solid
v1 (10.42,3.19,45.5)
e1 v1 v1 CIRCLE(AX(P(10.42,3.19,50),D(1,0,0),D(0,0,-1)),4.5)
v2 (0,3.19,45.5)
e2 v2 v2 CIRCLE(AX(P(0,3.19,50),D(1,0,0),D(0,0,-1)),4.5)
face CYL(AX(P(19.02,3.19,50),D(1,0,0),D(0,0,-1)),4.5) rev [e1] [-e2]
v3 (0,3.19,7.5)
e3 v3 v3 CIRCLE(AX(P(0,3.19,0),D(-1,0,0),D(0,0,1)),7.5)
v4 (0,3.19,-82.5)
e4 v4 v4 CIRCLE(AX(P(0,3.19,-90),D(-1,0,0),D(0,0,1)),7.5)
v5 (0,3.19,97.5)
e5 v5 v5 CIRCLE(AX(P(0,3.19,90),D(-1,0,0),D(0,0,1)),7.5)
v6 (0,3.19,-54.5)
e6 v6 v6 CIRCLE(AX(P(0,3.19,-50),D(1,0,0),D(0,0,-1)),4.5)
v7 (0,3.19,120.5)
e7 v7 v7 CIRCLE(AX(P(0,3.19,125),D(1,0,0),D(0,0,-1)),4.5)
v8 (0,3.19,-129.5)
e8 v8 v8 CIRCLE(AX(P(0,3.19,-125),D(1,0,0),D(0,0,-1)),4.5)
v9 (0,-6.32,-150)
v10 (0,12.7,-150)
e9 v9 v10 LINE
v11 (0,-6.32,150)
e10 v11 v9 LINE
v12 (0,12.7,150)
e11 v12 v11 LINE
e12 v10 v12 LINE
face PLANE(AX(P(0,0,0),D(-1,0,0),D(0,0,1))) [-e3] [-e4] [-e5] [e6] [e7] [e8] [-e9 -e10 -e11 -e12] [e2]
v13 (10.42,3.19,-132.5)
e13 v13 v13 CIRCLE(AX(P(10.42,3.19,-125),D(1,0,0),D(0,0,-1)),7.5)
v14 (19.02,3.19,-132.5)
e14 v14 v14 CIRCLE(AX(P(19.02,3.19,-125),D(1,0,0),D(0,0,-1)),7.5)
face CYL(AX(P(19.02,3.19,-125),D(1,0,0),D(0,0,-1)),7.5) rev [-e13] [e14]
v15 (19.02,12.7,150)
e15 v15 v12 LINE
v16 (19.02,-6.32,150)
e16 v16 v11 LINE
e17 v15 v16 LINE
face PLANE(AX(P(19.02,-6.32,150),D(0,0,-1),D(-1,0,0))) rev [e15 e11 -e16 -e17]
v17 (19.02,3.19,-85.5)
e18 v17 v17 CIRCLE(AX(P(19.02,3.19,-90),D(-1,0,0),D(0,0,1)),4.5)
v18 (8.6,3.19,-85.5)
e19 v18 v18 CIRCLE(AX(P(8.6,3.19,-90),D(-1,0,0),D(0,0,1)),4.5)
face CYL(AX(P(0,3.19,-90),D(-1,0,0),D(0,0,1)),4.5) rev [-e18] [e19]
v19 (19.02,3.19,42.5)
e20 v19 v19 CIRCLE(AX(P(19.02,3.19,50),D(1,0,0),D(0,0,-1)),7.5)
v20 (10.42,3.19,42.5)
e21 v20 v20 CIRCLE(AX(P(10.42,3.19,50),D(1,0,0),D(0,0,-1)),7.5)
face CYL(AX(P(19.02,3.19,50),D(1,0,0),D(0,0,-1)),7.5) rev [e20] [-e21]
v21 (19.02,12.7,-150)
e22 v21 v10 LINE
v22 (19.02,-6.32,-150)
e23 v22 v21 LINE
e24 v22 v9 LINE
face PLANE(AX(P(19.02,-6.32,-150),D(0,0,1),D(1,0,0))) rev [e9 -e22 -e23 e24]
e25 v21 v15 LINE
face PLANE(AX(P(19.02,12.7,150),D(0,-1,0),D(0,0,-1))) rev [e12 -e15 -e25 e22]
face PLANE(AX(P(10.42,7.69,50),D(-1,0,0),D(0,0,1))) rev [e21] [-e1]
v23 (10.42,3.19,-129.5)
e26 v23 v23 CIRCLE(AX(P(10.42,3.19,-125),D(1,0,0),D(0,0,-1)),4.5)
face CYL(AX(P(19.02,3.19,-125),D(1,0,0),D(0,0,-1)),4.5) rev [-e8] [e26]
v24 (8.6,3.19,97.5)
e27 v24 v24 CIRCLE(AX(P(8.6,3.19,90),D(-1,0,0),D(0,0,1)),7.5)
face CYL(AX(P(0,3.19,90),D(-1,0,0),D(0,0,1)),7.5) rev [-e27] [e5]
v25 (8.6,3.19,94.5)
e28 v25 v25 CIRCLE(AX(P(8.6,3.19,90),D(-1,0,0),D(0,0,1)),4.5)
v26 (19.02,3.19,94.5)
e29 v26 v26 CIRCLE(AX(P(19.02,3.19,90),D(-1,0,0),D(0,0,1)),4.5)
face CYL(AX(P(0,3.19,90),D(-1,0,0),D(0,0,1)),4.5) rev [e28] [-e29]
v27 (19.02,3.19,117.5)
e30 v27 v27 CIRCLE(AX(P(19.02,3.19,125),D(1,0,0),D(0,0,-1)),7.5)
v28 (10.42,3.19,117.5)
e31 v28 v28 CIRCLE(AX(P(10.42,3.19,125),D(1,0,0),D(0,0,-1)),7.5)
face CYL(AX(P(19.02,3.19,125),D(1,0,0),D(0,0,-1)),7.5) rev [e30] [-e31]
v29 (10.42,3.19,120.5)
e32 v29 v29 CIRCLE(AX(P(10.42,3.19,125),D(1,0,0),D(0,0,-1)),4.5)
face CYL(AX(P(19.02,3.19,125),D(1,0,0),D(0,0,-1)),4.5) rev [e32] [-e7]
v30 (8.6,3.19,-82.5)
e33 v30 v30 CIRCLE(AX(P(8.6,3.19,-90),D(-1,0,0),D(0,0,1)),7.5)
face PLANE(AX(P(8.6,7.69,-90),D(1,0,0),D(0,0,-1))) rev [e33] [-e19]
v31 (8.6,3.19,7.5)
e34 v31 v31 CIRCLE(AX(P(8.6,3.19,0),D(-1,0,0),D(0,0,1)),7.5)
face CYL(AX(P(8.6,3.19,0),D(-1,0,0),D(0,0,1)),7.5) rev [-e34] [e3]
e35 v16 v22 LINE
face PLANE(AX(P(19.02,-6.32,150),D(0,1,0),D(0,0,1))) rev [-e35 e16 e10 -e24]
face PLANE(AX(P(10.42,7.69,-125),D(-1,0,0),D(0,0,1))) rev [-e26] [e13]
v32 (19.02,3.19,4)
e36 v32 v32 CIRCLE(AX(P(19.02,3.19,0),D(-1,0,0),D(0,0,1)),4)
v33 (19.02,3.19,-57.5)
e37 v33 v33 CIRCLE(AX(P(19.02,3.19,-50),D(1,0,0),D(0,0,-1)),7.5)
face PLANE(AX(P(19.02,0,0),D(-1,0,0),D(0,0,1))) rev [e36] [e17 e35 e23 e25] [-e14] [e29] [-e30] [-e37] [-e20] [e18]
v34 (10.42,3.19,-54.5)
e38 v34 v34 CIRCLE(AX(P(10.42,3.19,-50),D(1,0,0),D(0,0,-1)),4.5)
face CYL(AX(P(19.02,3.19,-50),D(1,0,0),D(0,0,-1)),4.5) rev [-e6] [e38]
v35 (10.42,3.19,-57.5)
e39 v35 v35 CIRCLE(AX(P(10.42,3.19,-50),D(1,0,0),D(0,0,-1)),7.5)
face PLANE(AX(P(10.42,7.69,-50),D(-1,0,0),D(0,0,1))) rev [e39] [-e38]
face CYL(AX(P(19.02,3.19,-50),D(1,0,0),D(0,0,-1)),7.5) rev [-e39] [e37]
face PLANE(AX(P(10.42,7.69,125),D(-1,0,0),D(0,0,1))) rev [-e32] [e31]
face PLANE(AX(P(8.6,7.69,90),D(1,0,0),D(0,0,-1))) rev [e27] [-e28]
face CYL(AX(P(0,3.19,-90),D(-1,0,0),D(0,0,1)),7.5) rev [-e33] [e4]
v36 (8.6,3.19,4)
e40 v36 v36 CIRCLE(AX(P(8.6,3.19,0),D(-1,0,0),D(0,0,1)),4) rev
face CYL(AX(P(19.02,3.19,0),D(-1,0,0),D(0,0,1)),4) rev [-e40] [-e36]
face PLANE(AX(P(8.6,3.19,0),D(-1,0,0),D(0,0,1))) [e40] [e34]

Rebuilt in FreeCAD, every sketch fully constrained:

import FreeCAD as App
import Part
import Sketcher

V = App.Vector
Q = App.Units.Quantity


def add_polygon(sketch, points):
    """Adds a closed chain of lines whose ends are joined by coincident constraints."""
    first, n = sketch.GeometryCount, len(points)
    for a, b in zip(points, points[1:] + points[:1]):
        sketch.addGeometry(Part.LineSegment(App.Vector(*a, 0), App.Vector(*b, 0)), False)
    for i in range(n):
        sketch.addConstraint(Sketcher.Constraint("Coincident", first + i, 2, first + (i + 1) % n, 1))

doc = App.newDocument("Part")
body = doc.addObject("PartDesign::Body", "Body")

sketch1 = body.newObject("Sketcher::SketchObject", "Sketch")
sketch1.AttachmentSupport = (doc.getObject("YZ_Plane"), [""])
sketch1.MapMode = "FlatFace"
add_polygon(sketch1, [(12.7, 150), (-6.3, 150), (-6.3, -150), (12.7, -150)])
sketch1.addGeometry(Part.Circle(V(3.2, 125, 0), V(0, 0, 1), 4), False)
sketch1.addGeometry(Part.Circle(V(3.2, 50, 0), V(0, 0, 1), 4), False)
sketch1.addGeometry(Part.Circle(V(3.2, -50, 0), V(0, 0, 1), 4), False)
sketch1.addGeometry(Part.Circle(V(3.2, -125, 0), V(0, 0, 1), 4), False)
sketch1.addConstraint(Sketcher.Constraint("Horizontal", 0))
sketch1.addConstraint(Sketcher.Constraint("Vertical", 1))
sketch1.addConstraint(Sketcher.Constraint("Horizontal", 2))
sketch1.addConstraint(Sketcher.Constraint("Vertical", 3))
sketch1.addConstraint(Sketcher.Constraint("Equal", 4, 5))
sketch1.addConstraint(Sketcher.Constraint("Equal", 5, 6))
sketch1.addConstraint(Sketcher.Constraint("Equal", 6, 7))
sketch1.addConstraint(Sketcher.Constraint("Symmetric", 5, 3, 6, 3, -1))
sketch1.addConstraint(Sketcher.Constraint("Symmetric", 4, 3, 7, 3, -1))
sketch1.addConstraint(Sketcher.Constraint("Vertical", 4, 3, 5, 3))
sketch1.addConstraint(Sketcher.Constraint("Diameter", 4, Q("8 mm")))
sketch1.addConstraint(Sketcher.Constraint("DistanceY", 1, 2, 1, 1, Q("300 mm")))
sketch1.addConstraint(Sketcher.Constraint("DistanceY", -1, 1, 4, 3, Q("125 mm")))
sketch1.addConstraint(Sketcher.Constraint("DistanceY", -1, 1, 5, 3, Q("50 mm")))
sketch1.addConstraint(Sketcher.Constraint("DistanceY", -1, 1, 0, 2, Q("150 mm")))
sketch1.addConstraint(Sketcher.Constraint("DistanceX", 0, 2, 0, 1, Q("19.02 mm")))
sketch1.addConstraint(Sketcher.Constraint("DistanceX", -1, 1, 2, 2, Q("12.7 mm")))
sketch1.addConstraint(Sketcher.Constraint("DistanceX", -1, 1, 4, 3, Q("3.19 mm")))
pad1 = body.newObject("PartDesign::Pad", "Pad")
pad1.Profile = sketch1
pad1.Length = 19.02

sketch2 = body.newObject("Sketcher::SketchObject", "Sketch001")
sketch2.AttachmentSupport = (doc.getObject("YZ_Plane"), [""])
sketch2.MapMode = "FlatFace"
sketch2.AttachmentOffset = App.Placement(V(0, 0, 19.02), App.Rotation())
sketch2.addGeometry(Part.Circle(V(3.2, 125, 0), V(0, 0, 1), 4.5), False)
sketch2.addGeometry(Part.Circle(V(3.2, 50, 0), V(0, 0, 1), 4.5), False)
sketch2.addGeometry(Part.Circle(V(3.2, -50, 0), V(0, 0, 1), 4.5), False)
sketch2.addGeometry(Part.Circle(V(3.2, -125, 0), V(0, 0, 1), 4.5), False)
sketch2.addConstraint(Sketcher.Constraint("Equal", 0, 1))
sketch2.addConstraint(Sketcher.Constraint("Equal", 1, 2))
sketch2.addConstraint(Sketcher.Constraint("Equal", 2, 3))
sketch2.addConstraint(Sketcher.Constraint("Symmetric", 1, 3, 2, 3, -1))
sketch2.addConstraint(Sketcher.Constraint("Symmetric", 0, 3, 3, 3, -1))
sketch2.addConstraint(Sketcher.Constraint("Vertical", 0, 3, 1, 3))
sketch2.addConstraint(Sketcher.Constraint("Diameter", 0, Q("9 mm")))
sketch2.addConstraint(Sketcher.Constraint("DistanceY", -1, 1, 0, 3, Q("125 mm")))
sketch2.addConstraint(Sketcher.Constraint("DistanceY", -1, 1, 1, 3, Q("50 mm")))
sketch2.addConstraint(Sketcher.Constraint("DistanceX", -1, 1, 0, 3, Q("3.19 mm")))
doc.recompute()
hole = body.newObject("PartDesign::Hole", "Hole")
hole.Profile = sketch2
hole.ThreadType = "None"
hole.Diameter = 9
hole.DepthType = "ThroughAll"
hole.HoleCutType = "Counterbore"
hole.HoleCutDiameter = 15
hole.HoleCutDepth = 8.6

sketch3 = body.newObject("Sketcher::SketchObject", "Sketch002")
sketch3.AttachmentSupport = (doc.getObject("YZ_Plane"), [""])
sketch3.MapMode = "FlatFace"
sketch3.addGeometry(Part.Circle(V(3.2, 0, 0), V(0, 0, 1), 4), False)
sketch3.addGeometry(Part.Circle(V(3.2, 90, 0), V(0, 0, 1), 4), False)
sketch3.addGeometry(Part.Circle(V(3.2, -90, 0), V(0, 0, 1), 4), False)
sketch3.addConstraint(Sketcher.Constraint("Equal", 0, 1))
sketch3.addConstraint(Sketcher.Constraint("Equal", 1, 2))
sketch3.addConstraint(Sketcher.Constraint("Symmetric", 1, 3, 2, 3, -1))
sketch3.addConstraint(Sketcher.Constraint("PointOnObject", 0, 3, -1))
sketch3.addConstraint(Sketcher.Constraint("Vertical", 0, 3, 1, 3))
sketch3.addConstraint(Sketcher.Constraint("Diameter", 0, Q("8 mm")))
sketch3.addConstraint(Sketcher.Constraint("DistanceY", -1, 1, 1, 3, Q("90 mm")))
sketch3.addConstraint(Sketcher.Constraint("DistanceX", -1, 1, 0, 3, Q("3.19 mm")))
pocket1 = body.newObject("PartDesign::Pocket", "Pocket")
pocket1.Profile = sketch3
pocket1.Type = "ThroughAll"
pocket1.Reversed = True

sketch4 = body.newObject("Sketcher::SketchObject", "Sketch003")
sketch4.AttachmentSupport = (doc.getObject("YZ_Plane"), [""])
sketch4.MapMode = "FlatFace"
sketch4.addGeometry(Part.Circle(V(3.2, -90, 0), V(0, 0, 1), 4.5), False)
sketch4.addGeometry(Part.Circle(V(3.2, 90, 0), V(0, 0, 1), 4.5), False)
sketch4.addConstraint(Sketcher.Constraint("Equal", 0, 1))
sketch4.addConstraint(Sketcher.Constraint("Symmetric", 0, 3, 1, 3, -1))
sketch4.addConstraint(Sketcher.Constraint("Diameter", 0, Q("9 mm")))
sketch4.addConstraint(Sketcher.Constraint("DistanceY", 0, 3, -1, 1, Q("90 mm")))
sketch4.addConstraint(Sketcher.Constraint("DistanceX", -1, 1, 0, 3, Q("3.19 mm")))
doc.recompute()
hole2 = body.newObject("PartDesign::Hole", "Hole001")
hole2.Profile = sketch4
hole2.ThreadType = "None"
hole2.Diameter = 9
hole2.DepthType = "ThroughAll"
hole2.HoleCutType = "Counterbore"
hole2.HoleCutDiameter = 15
hole2.HoleCutDepth = 8.6
hole2.Reversed = True

sketch5 = body.newObject("Sketcher::SketchObject", "Sketch004")
sketch5.AttachmentSupport = (doc.getObject("YZ_Plane"), [""])
sketch5.MapMode = "FlatFace"
sketch5.addGeometry(Part.Circle(V(3, 0, 0), V(0, 0, 1), 8), False)
sketch5.addConstraint(Sketcher.Constraint("PointOnObject", 0, 3, -1))
sketch5.addConstraint(Sketcher.Constraint("Diameter", 0, Q("15 mm")))
sketch5.addConstraint(Sketcher.Constraint("DistanceX", -1, 1, 0, 3, Q("3.19 mm")))
pocket2 = body.newObject("PartDesign::Pocket", "Pocket001")
pocket2.Profile = sketch5
pocket2.Length = 8.6
pocket2.Reversed = True

doc.recompute()
